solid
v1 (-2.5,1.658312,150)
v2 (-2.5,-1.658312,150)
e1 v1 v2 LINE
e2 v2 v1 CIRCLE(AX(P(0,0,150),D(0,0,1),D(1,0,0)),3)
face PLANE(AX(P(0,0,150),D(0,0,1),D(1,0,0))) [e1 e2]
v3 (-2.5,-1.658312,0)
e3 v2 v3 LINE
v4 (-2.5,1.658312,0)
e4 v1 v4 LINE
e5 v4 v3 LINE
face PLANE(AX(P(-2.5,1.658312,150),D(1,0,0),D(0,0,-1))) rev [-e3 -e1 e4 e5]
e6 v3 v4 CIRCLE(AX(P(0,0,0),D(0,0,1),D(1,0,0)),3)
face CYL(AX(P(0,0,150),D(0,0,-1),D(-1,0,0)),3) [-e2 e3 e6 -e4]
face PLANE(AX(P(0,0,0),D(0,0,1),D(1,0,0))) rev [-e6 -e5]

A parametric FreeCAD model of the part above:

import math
import FreeCAD as App
import Part
import Sketcher
Q = App.Units.Quantity

doc = App.newDocument("Part")
body = doc.addObject("PartDesign::Body", "Body")

sketch1 = body.newObject("Sketcher::SketchObject", "Sketch")
sketch1.AttachmentSupport = (doc.getObject("XY_Plane"), [""])
sketch1.MapMode = "FlatFace"
sketch1.addGeometry([
    Part.LineSegment(App.Vector(-2.5, 1.7, 0), App.Vector(-2.5, -1.7, 0)),
    Part.ArcOfCircle(Part.Circle(App.Vector(0, 0, 0), App.Vector(0, 0, 1), 3), math.radians(-146), math.radians(146)),
], False)
sketch1.addConstraint([
    Sketcher.Constraint("Coincident", 0, 1, 1, 2),
    Sketcher.Constraint("Coincident", 1, 1, 0, 2),
    Sketcher.Constraint("Vertical", 0),
    Sketcher.Constraint("Coincident", 1, 3, -1, 1),
    Sketcher.Constraint("Radius", 1, Q("3 mm")),
    Sketcher.Constraint("DistanceX", 0, 1, -1, 1, Q("2.5 mm")),
])
pad1 = body.newObject("PartDesign::Pad", "Pad")
pad1.Profile = sketch1
pad1.Length = 150

doc.recompute()
